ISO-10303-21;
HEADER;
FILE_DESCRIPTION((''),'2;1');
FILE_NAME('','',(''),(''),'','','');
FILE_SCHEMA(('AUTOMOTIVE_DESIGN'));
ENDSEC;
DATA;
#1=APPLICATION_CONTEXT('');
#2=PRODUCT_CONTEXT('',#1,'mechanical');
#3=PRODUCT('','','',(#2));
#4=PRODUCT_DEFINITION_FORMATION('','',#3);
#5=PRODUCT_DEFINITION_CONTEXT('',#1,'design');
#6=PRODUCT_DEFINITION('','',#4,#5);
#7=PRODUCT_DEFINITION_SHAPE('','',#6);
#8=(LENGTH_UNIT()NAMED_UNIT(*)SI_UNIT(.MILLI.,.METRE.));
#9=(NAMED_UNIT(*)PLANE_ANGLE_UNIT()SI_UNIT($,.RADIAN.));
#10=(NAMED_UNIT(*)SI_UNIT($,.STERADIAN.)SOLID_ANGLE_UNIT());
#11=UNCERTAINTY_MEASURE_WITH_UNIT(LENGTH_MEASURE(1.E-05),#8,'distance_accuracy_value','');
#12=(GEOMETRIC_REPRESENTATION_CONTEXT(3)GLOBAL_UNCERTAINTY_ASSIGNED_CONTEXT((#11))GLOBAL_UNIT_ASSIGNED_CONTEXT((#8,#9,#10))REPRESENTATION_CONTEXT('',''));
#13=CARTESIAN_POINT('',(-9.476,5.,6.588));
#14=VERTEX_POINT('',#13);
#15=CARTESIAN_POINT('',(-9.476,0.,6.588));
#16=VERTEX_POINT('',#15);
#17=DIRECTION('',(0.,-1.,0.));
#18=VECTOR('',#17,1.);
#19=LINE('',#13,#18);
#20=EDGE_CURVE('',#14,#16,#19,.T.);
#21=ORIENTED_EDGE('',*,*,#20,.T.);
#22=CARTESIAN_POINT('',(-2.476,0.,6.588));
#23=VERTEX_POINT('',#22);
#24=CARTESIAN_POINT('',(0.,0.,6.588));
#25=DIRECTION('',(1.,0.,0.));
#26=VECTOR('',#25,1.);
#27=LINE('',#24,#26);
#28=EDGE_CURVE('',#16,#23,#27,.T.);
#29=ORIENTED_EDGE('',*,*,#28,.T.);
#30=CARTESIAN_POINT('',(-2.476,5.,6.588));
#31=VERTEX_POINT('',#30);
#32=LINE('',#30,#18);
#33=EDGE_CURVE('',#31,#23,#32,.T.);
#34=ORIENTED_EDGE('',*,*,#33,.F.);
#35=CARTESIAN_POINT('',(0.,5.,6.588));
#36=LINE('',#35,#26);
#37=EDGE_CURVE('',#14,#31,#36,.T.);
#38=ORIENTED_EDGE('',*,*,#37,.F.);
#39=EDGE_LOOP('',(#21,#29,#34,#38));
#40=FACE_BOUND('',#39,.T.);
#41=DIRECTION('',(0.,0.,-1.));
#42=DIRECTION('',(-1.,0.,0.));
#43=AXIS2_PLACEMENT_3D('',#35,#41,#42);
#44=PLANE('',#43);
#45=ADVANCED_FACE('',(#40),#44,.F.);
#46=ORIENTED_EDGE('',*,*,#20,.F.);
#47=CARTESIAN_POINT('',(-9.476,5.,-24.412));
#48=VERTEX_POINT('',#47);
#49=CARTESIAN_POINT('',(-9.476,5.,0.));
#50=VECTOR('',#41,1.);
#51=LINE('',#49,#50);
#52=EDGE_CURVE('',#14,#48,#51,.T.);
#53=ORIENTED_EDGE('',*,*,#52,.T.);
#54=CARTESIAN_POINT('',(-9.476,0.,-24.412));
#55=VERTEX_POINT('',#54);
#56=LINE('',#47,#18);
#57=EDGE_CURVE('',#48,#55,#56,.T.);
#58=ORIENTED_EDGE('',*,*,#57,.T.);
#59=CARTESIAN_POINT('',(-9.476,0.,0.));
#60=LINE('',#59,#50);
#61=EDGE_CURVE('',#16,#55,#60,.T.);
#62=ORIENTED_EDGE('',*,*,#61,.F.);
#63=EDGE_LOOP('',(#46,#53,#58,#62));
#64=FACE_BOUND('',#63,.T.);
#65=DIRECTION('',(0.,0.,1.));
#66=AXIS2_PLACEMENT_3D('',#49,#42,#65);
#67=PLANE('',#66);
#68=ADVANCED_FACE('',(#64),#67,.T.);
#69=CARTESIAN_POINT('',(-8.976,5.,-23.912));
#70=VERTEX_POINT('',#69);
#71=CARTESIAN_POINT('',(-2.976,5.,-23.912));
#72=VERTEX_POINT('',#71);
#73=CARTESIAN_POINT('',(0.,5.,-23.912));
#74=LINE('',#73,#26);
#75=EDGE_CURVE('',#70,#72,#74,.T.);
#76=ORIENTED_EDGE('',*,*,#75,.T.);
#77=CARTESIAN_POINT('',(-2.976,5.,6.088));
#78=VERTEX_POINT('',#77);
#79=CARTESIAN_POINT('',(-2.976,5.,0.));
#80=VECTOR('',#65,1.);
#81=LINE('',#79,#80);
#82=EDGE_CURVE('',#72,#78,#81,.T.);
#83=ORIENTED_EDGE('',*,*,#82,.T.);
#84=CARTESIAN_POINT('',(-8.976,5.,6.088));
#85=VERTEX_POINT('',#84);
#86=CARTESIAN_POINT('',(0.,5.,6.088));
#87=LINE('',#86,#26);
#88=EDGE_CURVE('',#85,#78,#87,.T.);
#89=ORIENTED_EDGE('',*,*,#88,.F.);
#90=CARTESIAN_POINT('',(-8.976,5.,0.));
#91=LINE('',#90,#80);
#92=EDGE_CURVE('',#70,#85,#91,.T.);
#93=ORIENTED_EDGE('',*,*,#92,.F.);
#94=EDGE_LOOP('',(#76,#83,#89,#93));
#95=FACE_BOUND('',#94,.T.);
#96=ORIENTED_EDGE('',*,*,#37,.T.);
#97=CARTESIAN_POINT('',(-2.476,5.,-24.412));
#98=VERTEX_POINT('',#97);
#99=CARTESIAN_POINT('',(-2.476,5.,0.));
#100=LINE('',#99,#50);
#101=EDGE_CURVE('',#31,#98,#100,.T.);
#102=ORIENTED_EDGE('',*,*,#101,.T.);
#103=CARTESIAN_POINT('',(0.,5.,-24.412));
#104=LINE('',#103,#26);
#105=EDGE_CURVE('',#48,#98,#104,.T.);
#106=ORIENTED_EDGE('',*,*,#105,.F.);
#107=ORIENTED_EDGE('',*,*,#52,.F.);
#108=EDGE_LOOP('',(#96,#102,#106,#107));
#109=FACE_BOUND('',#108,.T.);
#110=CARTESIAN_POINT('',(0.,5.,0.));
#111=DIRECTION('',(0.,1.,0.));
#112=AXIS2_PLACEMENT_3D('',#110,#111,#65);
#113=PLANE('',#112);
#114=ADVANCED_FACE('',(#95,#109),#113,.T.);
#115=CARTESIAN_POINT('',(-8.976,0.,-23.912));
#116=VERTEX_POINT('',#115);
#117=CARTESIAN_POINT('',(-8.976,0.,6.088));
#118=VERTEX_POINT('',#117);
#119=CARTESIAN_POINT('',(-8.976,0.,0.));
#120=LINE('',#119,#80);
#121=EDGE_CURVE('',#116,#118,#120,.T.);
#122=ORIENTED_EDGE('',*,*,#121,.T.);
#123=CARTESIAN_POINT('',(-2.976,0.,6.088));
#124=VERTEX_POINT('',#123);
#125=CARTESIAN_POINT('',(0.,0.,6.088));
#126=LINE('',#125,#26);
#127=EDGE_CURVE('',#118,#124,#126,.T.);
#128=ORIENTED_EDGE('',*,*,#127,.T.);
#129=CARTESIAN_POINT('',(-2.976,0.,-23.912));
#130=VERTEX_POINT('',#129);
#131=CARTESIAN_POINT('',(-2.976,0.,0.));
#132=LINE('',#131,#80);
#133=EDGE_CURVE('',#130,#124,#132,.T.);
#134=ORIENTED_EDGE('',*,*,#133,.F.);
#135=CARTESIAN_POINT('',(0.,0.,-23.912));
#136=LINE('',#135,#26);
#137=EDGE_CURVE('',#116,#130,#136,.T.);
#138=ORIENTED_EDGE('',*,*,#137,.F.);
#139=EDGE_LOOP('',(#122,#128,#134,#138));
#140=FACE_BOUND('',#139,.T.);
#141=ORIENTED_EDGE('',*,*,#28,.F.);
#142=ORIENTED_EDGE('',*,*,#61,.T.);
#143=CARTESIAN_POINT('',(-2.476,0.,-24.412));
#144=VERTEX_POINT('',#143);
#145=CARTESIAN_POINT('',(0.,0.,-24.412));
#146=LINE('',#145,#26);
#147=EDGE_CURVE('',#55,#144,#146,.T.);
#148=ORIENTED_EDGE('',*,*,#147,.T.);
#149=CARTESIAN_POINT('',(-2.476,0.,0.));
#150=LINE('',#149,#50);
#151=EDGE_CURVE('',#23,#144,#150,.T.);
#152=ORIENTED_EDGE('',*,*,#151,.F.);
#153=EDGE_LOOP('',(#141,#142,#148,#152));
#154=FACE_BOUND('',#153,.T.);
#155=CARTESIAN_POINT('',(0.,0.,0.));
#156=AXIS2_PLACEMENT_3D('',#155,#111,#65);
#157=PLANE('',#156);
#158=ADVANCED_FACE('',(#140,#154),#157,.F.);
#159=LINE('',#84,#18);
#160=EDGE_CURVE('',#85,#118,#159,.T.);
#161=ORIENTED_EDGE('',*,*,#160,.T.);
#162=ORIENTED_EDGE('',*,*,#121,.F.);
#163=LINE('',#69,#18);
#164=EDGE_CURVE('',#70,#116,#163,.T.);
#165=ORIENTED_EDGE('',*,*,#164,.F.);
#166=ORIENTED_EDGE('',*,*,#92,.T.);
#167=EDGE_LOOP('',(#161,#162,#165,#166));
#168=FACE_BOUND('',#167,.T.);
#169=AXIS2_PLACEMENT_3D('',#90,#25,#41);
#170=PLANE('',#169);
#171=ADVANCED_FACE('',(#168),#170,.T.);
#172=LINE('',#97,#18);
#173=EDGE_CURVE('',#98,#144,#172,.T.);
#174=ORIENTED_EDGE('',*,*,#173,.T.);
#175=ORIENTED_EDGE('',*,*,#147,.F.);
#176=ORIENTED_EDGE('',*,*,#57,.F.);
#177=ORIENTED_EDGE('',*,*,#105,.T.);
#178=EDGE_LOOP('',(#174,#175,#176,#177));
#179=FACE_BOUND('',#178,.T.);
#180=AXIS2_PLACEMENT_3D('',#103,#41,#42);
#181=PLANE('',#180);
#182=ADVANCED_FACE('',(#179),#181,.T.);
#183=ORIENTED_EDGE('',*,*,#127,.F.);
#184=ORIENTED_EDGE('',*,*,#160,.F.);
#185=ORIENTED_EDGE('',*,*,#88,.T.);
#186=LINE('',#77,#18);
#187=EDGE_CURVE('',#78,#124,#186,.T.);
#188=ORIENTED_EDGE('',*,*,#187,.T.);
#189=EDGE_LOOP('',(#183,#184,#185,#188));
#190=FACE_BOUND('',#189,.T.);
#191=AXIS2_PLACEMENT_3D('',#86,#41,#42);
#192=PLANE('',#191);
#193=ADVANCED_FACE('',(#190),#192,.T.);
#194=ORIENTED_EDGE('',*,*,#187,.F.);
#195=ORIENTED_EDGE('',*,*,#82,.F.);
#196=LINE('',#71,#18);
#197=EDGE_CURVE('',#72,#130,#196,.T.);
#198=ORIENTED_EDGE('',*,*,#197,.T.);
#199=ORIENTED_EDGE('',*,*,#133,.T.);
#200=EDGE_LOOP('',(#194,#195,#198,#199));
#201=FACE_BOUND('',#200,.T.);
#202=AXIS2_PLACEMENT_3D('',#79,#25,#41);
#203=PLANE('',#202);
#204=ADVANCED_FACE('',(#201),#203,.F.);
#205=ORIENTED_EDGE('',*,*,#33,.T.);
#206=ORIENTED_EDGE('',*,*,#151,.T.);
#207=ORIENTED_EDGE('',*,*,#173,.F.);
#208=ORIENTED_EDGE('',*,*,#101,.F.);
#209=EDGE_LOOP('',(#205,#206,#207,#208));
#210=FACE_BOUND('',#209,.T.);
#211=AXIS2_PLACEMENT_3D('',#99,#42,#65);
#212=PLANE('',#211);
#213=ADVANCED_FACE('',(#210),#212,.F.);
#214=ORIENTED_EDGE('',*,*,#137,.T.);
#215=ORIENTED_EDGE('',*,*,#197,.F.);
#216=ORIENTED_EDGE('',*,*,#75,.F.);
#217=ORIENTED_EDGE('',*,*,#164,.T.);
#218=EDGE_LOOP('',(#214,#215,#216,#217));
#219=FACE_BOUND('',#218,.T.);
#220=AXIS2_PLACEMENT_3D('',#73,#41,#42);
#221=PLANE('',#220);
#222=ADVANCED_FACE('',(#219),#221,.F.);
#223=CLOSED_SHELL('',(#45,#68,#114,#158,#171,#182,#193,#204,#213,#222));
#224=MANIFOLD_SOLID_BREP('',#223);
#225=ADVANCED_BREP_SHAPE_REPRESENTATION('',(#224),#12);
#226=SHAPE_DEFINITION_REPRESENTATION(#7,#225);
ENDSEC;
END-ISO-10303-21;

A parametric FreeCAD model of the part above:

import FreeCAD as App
import Part
import Sketcher
from FreeCAD import Vector


def add_polygon(sketch, points):
    """Adds a closed chain of lines whose ends are joined by coincident constraints."""
    first, n = sketch.GeometryCount, len(points)
    for a, b in zip(points, points[1:] + points[:1]):
        sketch.addGeometry(Part.LineSegment(App.Vector(*a, 0), App.Vector(*b, 0)), False)
    for i in range(n):
        sketch.addConstraint(Sketcher.Constraint("Coincident", first + i, 2, first + (i + 1) % n, 1))

doc = App.newDocument("Part")
body = doc.addObject("PartDesign::Body", "Body")

sketch1 = body.newObject("Sketcher::SketchObject", "Sketch")
sketch1.AttachmentSupport = (doc.getObject("XZ_Plane"), [""])
sketch1.MapMode = "FlatFace"
add_polygon(sketch1, [(-9.476, -24.412), (-9.476, 6.588), (-2.476, 6.588), (-2.476, -24.412)])
add_polygon(sketch1, [(-2.976, 6.088), (-8.976, 6.088), (-8.976, -23.912), (-2.976, -23.912)])
sketch1.addConstraint([
    Sketcher.Constraint("Vertical", 0),
    Sketcher.Constraint("Horizontal", 1),
    Sketcher.Constraint("Vertical", 2),
    Sketcher.Constraint("Horizontal", 3),
    Sketcher.Constraint("Horizontal", 4),
    Sketcher.Constraint("Vertical", 5),
    Sketcher.Constraint("Horizontal", 6),
    Sketcher.Constraint("Vertical", 7),
    Sketcher.Constraint("DistanceX", 1, 1, 1, 2, 7.0),
    Sketcher.Constraint("DistanceX", 4, 2, 4, 1, 6.0),
    Sketcher.Constraint("DistanceY", 0, 1, 0, 2, 31.0),
    Sketcher.Constraint("DistanceY", 5, 2, 5, 1, 30.0),
    Sketcher.Constraint("DistanceX", 0, 2, 4, 2, 0.5),
    Sketcher.Constraint("DistanceY", 4, 2, 0, 2, 0.5),
    Sketcher.Constraint("DistanceX", 0, 2, -1, 1, 9.476),
    Sketcher.Constraint("DistanceY", -1, 1, 0, 2, 6.588),
])
pad1 = body.newObject("PartDesign::Pad", "Pad")
pad1.Profile = sketch1
pad1.Length = 5
pad1.Reversed = True

doc.recompute()
